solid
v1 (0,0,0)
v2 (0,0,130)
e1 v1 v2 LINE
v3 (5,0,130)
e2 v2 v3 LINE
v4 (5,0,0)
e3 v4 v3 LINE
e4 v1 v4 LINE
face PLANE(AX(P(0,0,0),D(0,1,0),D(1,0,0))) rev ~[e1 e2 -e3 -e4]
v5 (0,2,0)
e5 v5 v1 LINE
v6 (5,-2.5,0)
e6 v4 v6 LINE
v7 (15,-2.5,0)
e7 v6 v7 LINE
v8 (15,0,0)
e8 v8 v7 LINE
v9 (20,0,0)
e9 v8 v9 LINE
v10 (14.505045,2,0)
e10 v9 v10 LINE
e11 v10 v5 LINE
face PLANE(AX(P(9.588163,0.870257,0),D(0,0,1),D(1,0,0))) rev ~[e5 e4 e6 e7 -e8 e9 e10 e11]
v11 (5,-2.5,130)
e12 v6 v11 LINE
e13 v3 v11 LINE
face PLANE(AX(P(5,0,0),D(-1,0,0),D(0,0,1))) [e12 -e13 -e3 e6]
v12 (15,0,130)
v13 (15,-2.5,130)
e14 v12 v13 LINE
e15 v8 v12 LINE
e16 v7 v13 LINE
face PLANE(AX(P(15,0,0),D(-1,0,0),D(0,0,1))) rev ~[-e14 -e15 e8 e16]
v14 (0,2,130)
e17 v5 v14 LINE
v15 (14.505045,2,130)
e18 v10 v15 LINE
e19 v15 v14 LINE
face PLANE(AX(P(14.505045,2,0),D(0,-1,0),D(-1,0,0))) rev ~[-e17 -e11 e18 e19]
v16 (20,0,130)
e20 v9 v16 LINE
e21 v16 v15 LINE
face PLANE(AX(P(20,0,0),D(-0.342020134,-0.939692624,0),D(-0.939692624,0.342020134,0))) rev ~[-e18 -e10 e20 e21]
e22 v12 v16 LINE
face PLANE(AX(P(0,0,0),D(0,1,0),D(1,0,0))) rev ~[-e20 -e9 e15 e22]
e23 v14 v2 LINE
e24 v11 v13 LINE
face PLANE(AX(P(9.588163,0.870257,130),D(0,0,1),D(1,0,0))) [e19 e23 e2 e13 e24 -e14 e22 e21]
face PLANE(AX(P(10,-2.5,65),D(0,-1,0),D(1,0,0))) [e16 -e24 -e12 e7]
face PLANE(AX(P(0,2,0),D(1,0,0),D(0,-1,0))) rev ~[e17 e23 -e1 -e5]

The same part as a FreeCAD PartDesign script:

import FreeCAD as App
import Part
import Sketcher

V = App.Vector
Q = App.Units.Quantity


def add_polygon(sketch, points):
    """Adds a closed chain of lines whose ends are joined by coincident constraints."""
    first, n = sketch.GeometryCount, len(points)
    for a, b in zip(points, points[1:] + points[:1]):
        sketch.addGeometry(Part.LineSegment(App.Vector(*a, 0), App.Vector(*b, 0)), False)
    for i in range(n):
        sketch.addConstraint(Sketcher.Constraint("Coincident", first + i, 2, first + (i + 1) % n, 1))

doc = App.newDocument("Part")
params = doc.addObject("Spreadsheet::Sheet", "Params")
for row, (alias, value) in enumerate([
    ("sketch1_width", "20 mm"),
    ("sketch1_height", "2 mm"),
    ("pad1_length", "130 mm"),
    ("sketch2_width", "10 mm"),
    ("sketch2_height", "130 mm"),
    ("pad2_length", "2.5 mm"),
], start=1):
    params.set(f"A{row}", alias)
    params.set(f"B{row}", "=" + value)
    params.setAlias(f"B{row}", alias)

body = doc.addObject("PartDesign::Body", "Body")

# Sketch on XY plane
sketch1 = doc.addObject("Sketcher::SketchObject", "Sketch")
body.addObject(sketch1)
sketch1.AttachmentSupport = (doc.XY_Plane, [""])
sketch1.MapMode = "FlatFace"
add_polygon(sketch1, [(0, 0), (20, 0), (14.5, 2), (0, 2)])  # lines 0-3
sketch1.addConstraint(Sketcher.Constraint("Horizontal", 0))
sketch1.addConstraint(Sketcher.Constraint("Horizontal", 2))
sketch1.addConstraint(Sketcher.Constraint("Vertical", 3))
sketch1.addConstraint(Sketcher.Constraint("Coincident", 3, 2, -1, 1))
sketch1.addConstraint(Sketcher.Constraint("DistanceX", 0, 1, 0, 2, Q("20 mm")))
sketch1.addConstraint(Sketcher.Constraint("DistanceY", 3, 2, 3, 1, Q("2 mm")))
sketch1.addConstraint(Sketcher.Constraint("Angle", 1, Q("160.000001 deg")))
sketch1.setExpression("Constraints[8]", "Params.sketch1_width")
sketch1.setExpression("Constraints[9]", "Params.sketch1_height")
pad1 = doc.addObject("PartDesign::Pad", "Pad")
body.addObject(pad1)
pad1.Profile = sketch1
pad1.setExpression("Length", "Params.pad1_length")

# Sketch on XZ plane
sketch2 = doc.addObject("Sketcher::SketchObject", "Sketch001")
body.addObject(sketch2)
sketch2.AttachmentSupport = (doc.XZ_Plane, [""])
sketch2.MapMode = "FlatFace"
add_polygon(sketch2, [(5, 130), (5, 0), (15, 0), (15, 130)])  # lines 0-3
sketch2.addConstraint(Sketcher.Constraint("Vertical", 0))
sketch2.addConstraint(Sketcher.Constraint("Horizontal", 1))
sketch2.addConstraint(Sketcher.Constraint("Vertical", 2))
sketch2.addConstraint(Sketcher.Constraint("Horizontal", 3))
sketch2.addConstraint(Sketcher.Constraint("PointOnObject", 0, 2, -1))
sketch2.addConstraint(Sketcher.Constraint("DistanceX", 1, 1, 1, 2, Q("10 mm")))
sketch2.addConstraint(Sketcher.Constraint("DistanceY", 0, 2, 0, 1, Q("130 mm")))
sketch2.addConstraint(Sketcher.Constraint("DistanceX", -1, 1, 0, 2, Q("5 mm")))
sketch2.setExpression("Constraints[9]", "Params.sketch2_width")
sketch2.setExpression("Constraints[10]", "Params.sketch2_height")
pad2 = doc.addObject("PartDesign::Pad", "Pad001")
body.addObject(pad2)
pad2.Profile = sketch2
pad2.setExpression("Length", "Params.pad2_length")

doc.recompute()
